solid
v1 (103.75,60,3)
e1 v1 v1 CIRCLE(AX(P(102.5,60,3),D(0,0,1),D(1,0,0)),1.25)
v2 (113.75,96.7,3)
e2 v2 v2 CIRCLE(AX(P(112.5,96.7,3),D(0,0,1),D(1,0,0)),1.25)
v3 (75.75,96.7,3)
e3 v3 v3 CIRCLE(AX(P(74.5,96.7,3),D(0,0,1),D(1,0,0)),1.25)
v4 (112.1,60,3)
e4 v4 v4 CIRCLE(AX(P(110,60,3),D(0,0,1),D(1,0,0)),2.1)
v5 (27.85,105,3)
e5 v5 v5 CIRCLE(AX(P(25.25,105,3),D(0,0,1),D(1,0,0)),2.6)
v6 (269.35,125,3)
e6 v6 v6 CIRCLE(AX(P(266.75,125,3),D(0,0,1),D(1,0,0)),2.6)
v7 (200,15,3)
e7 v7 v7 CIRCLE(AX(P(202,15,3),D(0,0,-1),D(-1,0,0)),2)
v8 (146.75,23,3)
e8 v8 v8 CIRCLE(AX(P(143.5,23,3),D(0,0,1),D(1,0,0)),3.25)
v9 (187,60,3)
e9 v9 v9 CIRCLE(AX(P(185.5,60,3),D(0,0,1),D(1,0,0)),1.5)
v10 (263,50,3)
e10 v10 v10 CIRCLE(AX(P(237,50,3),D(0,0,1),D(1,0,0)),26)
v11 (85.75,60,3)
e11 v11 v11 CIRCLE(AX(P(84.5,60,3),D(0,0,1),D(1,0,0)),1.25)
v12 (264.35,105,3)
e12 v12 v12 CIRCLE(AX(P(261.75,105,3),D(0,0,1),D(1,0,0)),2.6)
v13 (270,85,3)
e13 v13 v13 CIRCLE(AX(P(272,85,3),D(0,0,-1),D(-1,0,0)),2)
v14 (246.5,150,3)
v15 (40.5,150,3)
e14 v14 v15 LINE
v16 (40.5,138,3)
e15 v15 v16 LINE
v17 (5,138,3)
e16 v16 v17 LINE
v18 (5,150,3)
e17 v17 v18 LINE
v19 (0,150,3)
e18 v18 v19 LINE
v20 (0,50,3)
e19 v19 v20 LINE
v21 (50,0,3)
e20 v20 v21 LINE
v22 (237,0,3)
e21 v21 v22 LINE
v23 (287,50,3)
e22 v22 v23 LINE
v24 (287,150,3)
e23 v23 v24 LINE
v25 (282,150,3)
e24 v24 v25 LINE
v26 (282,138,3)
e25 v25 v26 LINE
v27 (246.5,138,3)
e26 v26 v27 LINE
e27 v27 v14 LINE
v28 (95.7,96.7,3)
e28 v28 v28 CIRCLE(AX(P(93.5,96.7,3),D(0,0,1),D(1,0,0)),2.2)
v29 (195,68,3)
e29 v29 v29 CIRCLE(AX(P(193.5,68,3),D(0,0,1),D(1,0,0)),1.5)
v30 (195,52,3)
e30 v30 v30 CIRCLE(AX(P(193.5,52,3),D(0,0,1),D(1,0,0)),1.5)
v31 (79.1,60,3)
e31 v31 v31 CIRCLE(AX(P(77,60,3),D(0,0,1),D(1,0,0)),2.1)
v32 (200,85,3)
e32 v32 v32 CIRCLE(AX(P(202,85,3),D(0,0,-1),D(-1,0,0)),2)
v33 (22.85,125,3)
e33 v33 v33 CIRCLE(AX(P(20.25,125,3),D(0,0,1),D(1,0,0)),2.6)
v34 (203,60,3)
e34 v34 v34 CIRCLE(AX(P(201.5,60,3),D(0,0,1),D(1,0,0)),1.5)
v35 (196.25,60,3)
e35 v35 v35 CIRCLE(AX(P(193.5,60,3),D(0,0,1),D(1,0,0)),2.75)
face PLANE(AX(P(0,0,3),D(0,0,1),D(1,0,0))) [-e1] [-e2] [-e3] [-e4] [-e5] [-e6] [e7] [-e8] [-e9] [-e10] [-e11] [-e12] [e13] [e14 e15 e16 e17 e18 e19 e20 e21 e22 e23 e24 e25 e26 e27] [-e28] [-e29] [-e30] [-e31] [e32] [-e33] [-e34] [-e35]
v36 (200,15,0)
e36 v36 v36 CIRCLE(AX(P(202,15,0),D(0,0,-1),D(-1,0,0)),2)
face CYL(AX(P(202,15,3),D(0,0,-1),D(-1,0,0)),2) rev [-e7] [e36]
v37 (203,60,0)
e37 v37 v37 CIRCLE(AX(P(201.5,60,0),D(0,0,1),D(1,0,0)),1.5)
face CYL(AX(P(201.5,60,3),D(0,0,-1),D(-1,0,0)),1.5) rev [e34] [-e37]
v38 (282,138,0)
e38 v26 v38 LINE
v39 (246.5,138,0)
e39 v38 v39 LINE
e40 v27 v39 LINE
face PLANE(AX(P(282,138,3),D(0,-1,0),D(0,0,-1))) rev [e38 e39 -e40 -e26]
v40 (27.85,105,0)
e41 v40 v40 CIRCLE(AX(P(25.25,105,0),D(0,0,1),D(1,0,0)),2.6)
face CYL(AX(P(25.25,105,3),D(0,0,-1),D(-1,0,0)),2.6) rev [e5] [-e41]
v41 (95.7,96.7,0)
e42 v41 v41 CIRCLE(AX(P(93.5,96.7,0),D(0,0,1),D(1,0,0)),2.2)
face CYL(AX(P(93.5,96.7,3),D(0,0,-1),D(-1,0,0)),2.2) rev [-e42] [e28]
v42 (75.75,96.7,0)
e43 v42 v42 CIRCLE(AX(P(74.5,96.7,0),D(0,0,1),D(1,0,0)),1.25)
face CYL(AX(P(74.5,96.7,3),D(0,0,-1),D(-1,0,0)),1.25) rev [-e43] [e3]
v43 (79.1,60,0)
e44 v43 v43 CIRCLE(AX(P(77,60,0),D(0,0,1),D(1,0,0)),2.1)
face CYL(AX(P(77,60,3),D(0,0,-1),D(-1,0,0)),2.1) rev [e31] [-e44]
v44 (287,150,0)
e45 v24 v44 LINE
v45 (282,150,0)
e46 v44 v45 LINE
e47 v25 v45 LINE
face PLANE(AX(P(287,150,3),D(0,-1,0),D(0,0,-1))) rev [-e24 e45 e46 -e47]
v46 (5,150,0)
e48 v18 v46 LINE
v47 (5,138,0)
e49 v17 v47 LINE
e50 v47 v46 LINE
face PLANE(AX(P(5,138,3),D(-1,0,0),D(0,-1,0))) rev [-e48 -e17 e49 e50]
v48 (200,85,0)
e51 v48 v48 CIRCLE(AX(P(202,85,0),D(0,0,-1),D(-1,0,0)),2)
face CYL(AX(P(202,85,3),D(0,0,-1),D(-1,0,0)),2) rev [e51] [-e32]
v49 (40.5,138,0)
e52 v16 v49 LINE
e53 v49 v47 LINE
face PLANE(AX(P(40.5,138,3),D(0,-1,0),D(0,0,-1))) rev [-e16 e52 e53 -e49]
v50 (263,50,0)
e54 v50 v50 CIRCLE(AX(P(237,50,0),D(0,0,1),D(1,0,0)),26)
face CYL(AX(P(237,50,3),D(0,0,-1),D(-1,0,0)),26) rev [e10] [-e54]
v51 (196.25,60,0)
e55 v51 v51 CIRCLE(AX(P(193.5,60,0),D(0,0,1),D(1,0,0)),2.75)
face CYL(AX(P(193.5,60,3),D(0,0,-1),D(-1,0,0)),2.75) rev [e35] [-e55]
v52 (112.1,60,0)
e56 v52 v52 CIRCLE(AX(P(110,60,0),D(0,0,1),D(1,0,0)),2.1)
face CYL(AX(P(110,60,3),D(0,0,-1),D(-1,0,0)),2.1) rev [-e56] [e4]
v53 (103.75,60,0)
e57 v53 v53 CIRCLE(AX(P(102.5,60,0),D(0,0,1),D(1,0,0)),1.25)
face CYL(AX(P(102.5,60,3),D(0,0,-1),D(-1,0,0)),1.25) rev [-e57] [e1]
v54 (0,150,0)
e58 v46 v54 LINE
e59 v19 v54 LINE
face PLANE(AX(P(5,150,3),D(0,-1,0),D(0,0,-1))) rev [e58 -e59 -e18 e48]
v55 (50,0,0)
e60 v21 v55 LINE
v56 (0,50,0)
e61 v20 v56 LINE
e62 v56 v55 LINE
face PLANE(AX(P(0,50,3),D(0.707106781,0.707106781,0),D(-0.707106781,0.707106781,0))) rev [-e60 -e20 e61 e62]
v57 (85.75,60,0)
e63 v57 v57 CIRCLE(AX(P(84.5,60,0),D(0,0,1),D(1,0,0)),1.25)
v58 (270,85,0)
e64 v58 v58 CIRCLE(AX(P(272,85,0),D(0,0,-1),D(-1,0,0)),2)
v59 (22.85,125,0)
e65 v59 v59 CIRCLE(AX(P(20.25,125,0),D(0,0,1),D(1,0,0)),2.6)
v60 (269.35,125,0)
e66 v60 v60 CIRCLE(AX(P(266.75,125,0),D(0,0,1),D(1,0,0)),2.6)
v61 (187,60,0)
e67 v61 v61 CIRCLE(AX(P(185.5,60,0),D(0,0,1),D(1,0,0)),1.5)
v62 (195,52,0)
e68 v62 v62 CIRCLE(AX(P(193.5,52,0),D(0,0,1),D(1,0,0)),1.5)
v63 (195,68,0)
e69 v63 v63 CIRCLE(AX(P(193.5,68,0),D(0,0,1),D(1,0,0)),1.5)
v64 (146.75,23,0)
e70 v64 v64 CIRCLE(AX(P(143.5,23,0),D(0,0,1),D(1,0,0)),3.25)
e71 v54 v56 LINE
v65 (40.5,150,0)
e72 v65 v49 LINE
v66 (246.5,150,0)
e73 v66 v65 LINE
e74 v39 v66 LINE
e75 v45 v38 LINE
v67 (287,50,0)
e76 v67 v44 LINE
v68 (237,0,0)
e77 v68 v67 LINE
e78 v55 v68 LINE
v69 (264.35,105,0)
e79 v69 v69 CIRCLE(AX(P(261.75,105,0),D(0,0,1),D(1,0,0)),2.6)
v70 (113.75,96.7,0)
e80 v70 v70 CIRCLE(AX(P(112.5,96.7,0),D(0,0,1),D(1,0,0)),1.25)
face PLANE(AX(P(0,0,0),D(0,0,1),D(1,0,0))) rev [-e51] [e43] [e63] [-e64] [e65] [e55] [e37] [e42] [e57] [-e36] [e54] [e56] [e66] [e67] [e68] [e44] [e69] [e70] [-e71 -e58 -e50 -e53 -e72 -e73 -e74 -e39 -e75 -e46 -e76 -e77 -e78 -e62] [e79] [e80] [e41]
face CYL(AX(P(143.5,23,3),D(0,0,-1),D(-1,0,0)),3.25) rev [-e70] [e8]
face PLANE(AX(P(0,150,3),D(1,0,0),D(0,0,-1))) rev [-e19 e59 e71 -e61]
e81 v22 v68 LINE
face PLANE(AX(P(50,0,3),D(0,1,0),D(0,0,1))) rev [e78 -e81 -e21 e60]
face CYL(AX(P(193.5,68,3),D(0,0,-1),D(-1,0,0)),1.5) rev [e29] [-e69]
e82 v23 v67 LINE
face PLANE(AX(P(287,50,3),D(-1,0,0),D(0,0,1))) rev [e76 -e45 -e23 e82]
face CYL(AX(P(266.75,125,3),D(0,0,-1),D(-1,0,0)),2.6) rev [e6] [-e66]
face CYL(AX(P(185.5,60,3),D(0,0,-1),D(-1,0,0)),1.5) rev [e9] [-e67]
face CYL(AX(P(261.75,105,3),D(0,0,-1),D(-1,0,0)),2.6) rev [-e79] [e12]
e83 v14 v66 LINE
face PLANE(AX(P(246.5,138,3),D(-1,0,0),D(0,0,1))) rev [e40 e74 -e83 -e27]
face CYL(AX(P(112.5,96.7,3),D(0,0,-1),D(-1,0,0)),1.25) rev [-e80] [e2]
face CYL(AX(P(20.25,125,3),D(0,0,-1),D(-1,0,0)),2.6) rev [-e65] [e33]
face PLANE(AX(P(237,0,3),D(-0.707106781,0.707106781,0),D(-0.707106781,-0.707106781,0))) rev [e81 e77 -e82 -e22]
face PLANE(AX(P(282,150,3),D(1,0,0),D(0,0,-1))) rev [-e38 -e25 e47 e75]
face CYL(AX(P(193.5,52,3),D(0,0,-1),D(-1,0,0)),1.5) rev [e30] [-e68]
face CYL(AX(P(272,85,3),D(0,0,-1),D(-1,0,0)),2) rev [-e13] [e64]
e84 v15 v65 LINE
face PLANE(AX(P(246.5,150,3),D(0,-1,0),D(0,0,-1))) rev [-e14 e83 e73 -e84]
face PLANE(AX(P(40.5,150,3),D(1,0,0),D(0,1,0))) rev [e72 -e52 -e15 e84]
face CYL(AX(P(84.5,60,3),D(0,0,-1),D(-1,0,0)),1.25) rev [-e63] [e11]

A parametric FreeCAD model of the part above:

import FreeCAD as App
import Part
import Sketcher
from FreeCAD import Vector

doc = App.newDocument("Part")
body = doc.addObject("PartDesign::Body", "Body")

sketch1 = body.newObject("Sketcher::SketchObject", "Sketch")
sketch1.AttachmentSupport = (doc.getObject("XY_Plane"), [""])
sketch1.MapMode = "FlatFace"
sketch1.addGeometry([
    Part.LineSegment(Vector(5, 150, 0), Vector(0, 150, 0)),
    Part.LineSegment(Vector(0, 150, 0), Vector(0, 50, 0)),
    Part.LineSegment(Vector(0, 50, 0), Vector(50, 0, 0)),
    Part.LineSegment(Vector(50, 0, 0), Vector(237, 0, 0)),
    Part.LineSegment(Vector(237, 0, 0), Vector(287, 50, 0)),
    Part.LineSegment(Vector(287, 50, 0), Vector(287, 150, 0)),
    Part.LineSegment(Vector(287, 150, 0), Vector(282, 150, 0)),
    Part.LineSegment(Vector(282, 150, 0), Vector(282, 138, 0)),
    Part.LineSegment(Vector(282, 138, 0), Vector(246.5, 138, 0)),
    Part.LineSegment(Vector(246.5, 138, 0), Vector(246.5, 150, 0)),
    Part.LineSegment(Vector(246.5, 150, 0), Vector(40.5, 150, 0)),
    Part.LineSegment(Vector(40.5, 150, 0), Vector(40.5, 138, 0)),
    Part.LineSegment(Vector(40.5, 138, 0), Vector(5, 138, 0)),
    Part.LineSegment(Vector(5, 138, 0), Vector(5, 150, 0)),
    Part.Circle(Vector(77, 60, 0), Vector(0, 0, 1), 2.1),
    Part.Circle(Vector(84.5, 60, 0), Vector(0, 0, 1), 1.2),
    Part.Circle(Vector(102.5, 60, 0), Vector(0, 0, 1), 1.2),
    Part.Circle(Vector(110, 60, 0), Vector(0, 0, 1), 2.1),
    Part.Circle(Vector(143.5, 23, 0), Vector(0, 0, 1), 3.2),
    Part.Circle(Vector(193.5, 52, 0), Vector(0, 0, 1), 1.5),
    Part.Circle(Vector(185.5, 60, 0), Vector(0, 0, 1), 1.5),
    Part.Circle(Vector(193.5, 60, 0), Vector(0, 0, 1), 2.8),
    Part.Circle(Vector(201.5, 60, 0), Vector(0, 0, 1), 1.5),
    Part.Circle(Vector(193.5, 68, 0), Vector(0, 0, 1), 1.5),
    Part.Circle(Vector(237, 50, 0), Vector(0, 0, 1), 26),
    Part.Circle(Vector(74.5, 96.7, 0), Vector(0, 0, 1), 1.2),
    Part.Circle(Vector(93.5, 96.7, 0), Vector(0, 0, 1), 2.2),
    Part.Circle(Vector(112.5, 96.7, 0), Vector(0, 0, 1), 1.2),
    Part.Circle(Vector(25.2, 105, 0), Vector(0, 0, 1), 2.6),
    Part.Circle(Vector(20.2, 125, 0), Vector(0, 0, 1), 2.6),
    Part.Circle(Vector(261.8, 105, 0), Vector(0, 0, 1), 2.6),
    Part.Circle(Vector(266.8, 125, 0), Vector(0, 0, 1), 2.6),
], False)
sketch1.addConstraint([
    Sketcher.Constraint("Coincident", 0, 2, 1, 1),
    Sketcher.Constraint("Coincident", 1, 2, 2, 1),
    Sketcher.Constraint("Coincident", 2, 2, 3, 1),
    Sketcher.Constraint("Coincident", 3, 2, 4, 1),
    Sketcher.Constraint("Coincident", 4, 2, 5, 1),
    Sketcher.Constraint("Coincident", 5, 2, 6, 1),
    Sketcher.Constraint("Coincident", 6, 2, 7, 1),
    Sketcher.Constraint("Coincident", 7, 2, 8, 1),
    Sketcher.Constraint("Coincident", 8, 2, 9, 1),
    Sketcher.Constraint("Coincident", 9, 2, 10, 1),
    Sketcher.Constraint("Coincident", 10, 2, 11, 1),
    Sketcher.Constraint("Coincident", 11, 2, 12, 1),
    Sketcher.Constraint("Coincident", 12, 2, 13, 1),
    Sketcher.Constraint("Coincident", 13, 2, 0, 1),
    Sketcher.Constraint("Horizontal", 0),
    Sketcher.Constraint("Vertical", 1),
    Sketcher.Constraint("Horizontal", 3),
    Sketcher.Constraint("Vertical", 5),
    Sketcher.Constraint("Horizontal", 6),
    Sketcher.Constraint("Vertical", 7),
    Sketcher.Constraint("Horizontal", 8),
    Sketcher.Constraint("Vertical", 9),
    Sketcher.Constraint("Horizontal", 10),
    Sketcher.Constraint("Vertical", 11),
    Sketcher.Constraint("Horizontal", 12),
    Sketcher.Constraint("Vertical", 13),
    Sketcher.Constraint("Equal", 15, 16),
    Sketcher.Constraint("Equal", 14, 17),
    Sketcher.Constraint("Equal", 19, 20),
    Sketcher.Constraint("Equal", 20, 22),
    Sketcher.Constraint("Equal", 22, 23),
    Sketcher.Constraint("Equal", 16, 25),
    Sketcher.Constraint("Equal", 25, 27),
    Sketcher.Constraint("Equal", 28, 29),
    Sketcher.Constraint("Equal", 29, 30),
    Sketcher.Constraint("Equal", 30, 31),
    Sketcher.Constraint("PointOnObject", 0, 2, -2),
    Sketcher.Constraint("PointOnObject", 2, 2, -1),
    Sketcher.Constraint("Perpendicular", 2, 4),
    Sketcher.Constraint("Horizontal", 14, 3, 15, 3),
    Sketcher.Constraint("Horizontal", 15, 3, 16, 3),
    Sketcher.Constraint("Horizontal", 16, 3, 17, 3),
    Sketcher.Constraint("Horizontal", 17, 3, 20, 3),
    Sketcher.Constraint("Horizontal", 20, 3, 21, 3),
    Sketcher.Constraint("Horizontal", 21, 3, 22, 3),
    Sketcher.Constraint("Horizontal", 25, 3, 26, 3),
    Sketcher.Constraint("Horizontal", 26, 3, 27, 3),
    Sketcher.Constraint("Horizontal", 28, 3, 30, 3),
    Sketcher.Constraint("Horizontal", 29, 3, 31, 3),
    Sketcher.Constraint("Horizontal", 24, 3, 1, 2),
    Sketcher.Constraint("Horizontal", 1, 2, 4, 2),
    Sketcher.Constraint("Horizontal", 0, 2, 5, 2),
    Sketcher.Constraint("Horizontal", 6, 2, 9, 2),
    Sketcher.Constraint("Horizontal", 8, 2, 11, 2),
    Sketcher.Constraint("Vertical", 19, 3, 21, 3),
    Sketcher.Constraint("Vertical", 21, 3, 23, 3),
    Sketcher.Constraint("Vertical", 24, 3, 3, 2),
    Sketcher.Constraint("Equal", 0, 6),
    Sketcher.Constraint("Equal", 8, 12),
    Sketcher.Constraint("Equal", 2, 4),
    Sketcher.Constraint("Diameter", 19, 3.0),
    Sketcher.Constraint("Diameter", 24, 52.0),
    Sketcher.Constraint("Diameter", 14, 4.2),
    Sketcher.Constraint("Diameter", 15, 2.5),
    Sketcher.Constraint("Diameter", 18, 6.5),
    Sketcher.Constraint("Diameter", 21, 5.5),
    Sketcher.Constraint("Diameter", 26, 4.4),
    Sketcher.Constraint("Diameter", 28, 5.2),
    Sketcher.Constraint("DistanceX", 0, 2, 0, 1, 5.0),
    Sketcher.Constraint("DistanceX", 3, 1, 3, 2, 187.0),
    Sketcher.Constraint("DistanceX", 10, 2, 10, 1, 206.0),
    Sketcher.Constraint("DistanceY", 1, 2, 1, 1, 100.0),
    Sketcher.Constraint("DistanceY", 7, 2, 7, 1, 12.0),
    Sketcher.Constraint("DistanceX", 8, 2, 8, 1, 35.5),
    Sketcher.Constraint("DistanceX", -1, 1, 14, 3, 77.0),
    Sketcher.Constraint("DistanceY", -1, 1, 14, 3, 60.0),
    Sketcher.Constraint("DistanceX", -1, 1, 17, 3, 110.0),
    Sketcher.Constraint("DistanceY", -1, 1, 18, 3, 23.0),
    Sketcher.Constraint("DistanceY", -1, 1, 19, 3, 52.0),
    Sketcher.Constraint("DistanceY", -1, 1, 23, 3, 68.0),
    Sketcher.Constraint("DistanceY", -1, 1, 28, 3, 105.0),
    Sketcher.Constraint("DistanceY", -1, 1, 29, 3, 125.0),
    Sketcher.Constraint("DistanceX", 15, 3, 16, 3, 18.0),
    Sketcher.Constraint("DistanceX", 16, 3, 18, 3, 41.0),
    Sketcher.Constraint("DistanceX", 18, 3, 19, 3, 50.0),
    Sketcher.Constraint("DistanceX", 20, 3, 19, 3, 8.0),
    Sketcher.Constraint("DistanceX", 21, 3, 22, 3, 8.0),
    Sketcher.Constraint("DistanceX", 25, 3, 15, 3, 10.0),
    Sketcher.Constraint("DistanceX", 25, 3, 26, 3, 19.0),
    Sketcher.Constraint("DistanceX", 26, 3, 27, 3, 19.0),
    Sketcher.Constraint("DistanceX", 29, 3, 28, 3, 5.0),
    Sketcher.Constraint("DistanceX", 30, 3, 31, 3, 5.0),
    Sketcher.Constraint("DistanceX", 10, 2, 25, 3, 34.0),
    Sketcher.Constraint("DistanceY", -1, 1, 25, 3, 96.7),
    Sketcher.Constraint("DistanceX", -1, 1, 28, 3, 25.25),
    Sketcher.Constraint("DistanceX", -1, 1, 30, 3, 261.75),
])
pad1 = body.newObject("PartDesign::Pad", "Pad")
pad1.Profile = sketch1
pad1.Length = 3

sketch2 = body.newObject("Sketcher::SketchObject", "Sketch001")
sketch2.AttachmentSupport = (doc.getObject("XY_Plane"), [""])
sketch2.MapMode = "FlatFace"
sketch2.addGeometry([
    Part.Circle(Vector(202, 85, 0), Vector(0, 0, 1), 2),
    Part.Circle(Vector(202, 15, 0), Vector(0, 0, 1), 2),
    Part.Circle(Vector(272, 85, 0), Vector(0, 0, 1), 2),
], False)
sketch2.addConstraint([
    Sketcher.Constraint("Equal", 0, 1),
    Sketcher.Constraint("Equal", 1, 2),
    Sketcher.Constraint("Horizontal", 0, 3, 2, 3),
    Sketcher.Constraint("Vertical", 0, 3, 1, 3),
    Sketcher.Constraint("Diameter", 0, 4.0),
    Sketcher.Constraint("DistanceX", -1, 1, 0, 3, 202.0),
    Sketcher.Constraint("DistanceY", -1, 1, 0, 3, 85.0),
    Sketcher.Constraint("DistanceY", -1, 1, 1, 3, 15.0),
    Sketcher.Constraint("DistanceX", -1, 1, 2, 3, 272.0),
])
pocket1 = body.newObject("PartDesign::Pocket", "Pocket")
pocket1.Profile = sketch2
pocket1.Type = "ThroughAll"
pocket1.Reversed = True

doc.recompute()
